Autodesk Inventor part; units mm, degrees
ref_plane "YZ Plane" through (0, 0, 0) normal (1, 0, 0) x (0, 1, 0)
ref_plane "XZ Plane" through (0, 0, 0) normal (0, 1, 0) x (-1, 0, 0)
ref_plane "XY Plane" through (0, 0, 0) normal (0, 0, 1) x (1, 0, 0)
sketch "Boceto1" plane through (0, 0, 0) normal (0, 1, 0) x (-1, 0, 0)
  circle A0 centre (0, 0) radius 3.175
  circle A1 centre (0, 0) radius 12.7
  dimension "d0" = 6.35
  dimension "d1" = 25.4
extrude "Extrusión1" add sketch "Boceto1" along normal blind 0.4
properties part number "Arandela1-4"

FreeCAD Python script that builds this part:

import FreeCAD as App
import Part
import Sketcher

V = App.Vector
Q = App.Units.Quantity

doc = App.newDocument("Part")
body = doc.addObject("PartDesign::Body", "Body")

# Sketch on XZ plane
sketch1 = doc.addObject("Sketcher::SketchObject", "Sketch")
body.addObject(sketch1)
sketch1.AttachmentSupport = (doc.XZ_Plane, [""])
sketch1.MapMode = "FlatFace"
sketch1.addGeometry([
    Part.Circle(V(0, 0, 0), V(0, 0, 1), 12.7),
    Part.Circle(V(0, 0, 0), V(0, 0, 1), 3.2),
], False)
sketch1.addConstraint([
    Sketcher.Constraint("Coincident", 0, 3, -1, 1),
    Sketcher.Constraint("Coincident", 1, 3, -1, 1),
    Sketcher.Constraint("Diameter", 0, Q("1 in")),
    Sketcher.Constraint("Diameter", 1, Q("0.25 in")),
])
pad1 = doc.addObject("PartDesign::Pad", "Pad")
body.addObject(pad1)
pad1.Profile = sketch1
pad1.Length = 0.4
pad1.Reversed = True

doc.recompute()
